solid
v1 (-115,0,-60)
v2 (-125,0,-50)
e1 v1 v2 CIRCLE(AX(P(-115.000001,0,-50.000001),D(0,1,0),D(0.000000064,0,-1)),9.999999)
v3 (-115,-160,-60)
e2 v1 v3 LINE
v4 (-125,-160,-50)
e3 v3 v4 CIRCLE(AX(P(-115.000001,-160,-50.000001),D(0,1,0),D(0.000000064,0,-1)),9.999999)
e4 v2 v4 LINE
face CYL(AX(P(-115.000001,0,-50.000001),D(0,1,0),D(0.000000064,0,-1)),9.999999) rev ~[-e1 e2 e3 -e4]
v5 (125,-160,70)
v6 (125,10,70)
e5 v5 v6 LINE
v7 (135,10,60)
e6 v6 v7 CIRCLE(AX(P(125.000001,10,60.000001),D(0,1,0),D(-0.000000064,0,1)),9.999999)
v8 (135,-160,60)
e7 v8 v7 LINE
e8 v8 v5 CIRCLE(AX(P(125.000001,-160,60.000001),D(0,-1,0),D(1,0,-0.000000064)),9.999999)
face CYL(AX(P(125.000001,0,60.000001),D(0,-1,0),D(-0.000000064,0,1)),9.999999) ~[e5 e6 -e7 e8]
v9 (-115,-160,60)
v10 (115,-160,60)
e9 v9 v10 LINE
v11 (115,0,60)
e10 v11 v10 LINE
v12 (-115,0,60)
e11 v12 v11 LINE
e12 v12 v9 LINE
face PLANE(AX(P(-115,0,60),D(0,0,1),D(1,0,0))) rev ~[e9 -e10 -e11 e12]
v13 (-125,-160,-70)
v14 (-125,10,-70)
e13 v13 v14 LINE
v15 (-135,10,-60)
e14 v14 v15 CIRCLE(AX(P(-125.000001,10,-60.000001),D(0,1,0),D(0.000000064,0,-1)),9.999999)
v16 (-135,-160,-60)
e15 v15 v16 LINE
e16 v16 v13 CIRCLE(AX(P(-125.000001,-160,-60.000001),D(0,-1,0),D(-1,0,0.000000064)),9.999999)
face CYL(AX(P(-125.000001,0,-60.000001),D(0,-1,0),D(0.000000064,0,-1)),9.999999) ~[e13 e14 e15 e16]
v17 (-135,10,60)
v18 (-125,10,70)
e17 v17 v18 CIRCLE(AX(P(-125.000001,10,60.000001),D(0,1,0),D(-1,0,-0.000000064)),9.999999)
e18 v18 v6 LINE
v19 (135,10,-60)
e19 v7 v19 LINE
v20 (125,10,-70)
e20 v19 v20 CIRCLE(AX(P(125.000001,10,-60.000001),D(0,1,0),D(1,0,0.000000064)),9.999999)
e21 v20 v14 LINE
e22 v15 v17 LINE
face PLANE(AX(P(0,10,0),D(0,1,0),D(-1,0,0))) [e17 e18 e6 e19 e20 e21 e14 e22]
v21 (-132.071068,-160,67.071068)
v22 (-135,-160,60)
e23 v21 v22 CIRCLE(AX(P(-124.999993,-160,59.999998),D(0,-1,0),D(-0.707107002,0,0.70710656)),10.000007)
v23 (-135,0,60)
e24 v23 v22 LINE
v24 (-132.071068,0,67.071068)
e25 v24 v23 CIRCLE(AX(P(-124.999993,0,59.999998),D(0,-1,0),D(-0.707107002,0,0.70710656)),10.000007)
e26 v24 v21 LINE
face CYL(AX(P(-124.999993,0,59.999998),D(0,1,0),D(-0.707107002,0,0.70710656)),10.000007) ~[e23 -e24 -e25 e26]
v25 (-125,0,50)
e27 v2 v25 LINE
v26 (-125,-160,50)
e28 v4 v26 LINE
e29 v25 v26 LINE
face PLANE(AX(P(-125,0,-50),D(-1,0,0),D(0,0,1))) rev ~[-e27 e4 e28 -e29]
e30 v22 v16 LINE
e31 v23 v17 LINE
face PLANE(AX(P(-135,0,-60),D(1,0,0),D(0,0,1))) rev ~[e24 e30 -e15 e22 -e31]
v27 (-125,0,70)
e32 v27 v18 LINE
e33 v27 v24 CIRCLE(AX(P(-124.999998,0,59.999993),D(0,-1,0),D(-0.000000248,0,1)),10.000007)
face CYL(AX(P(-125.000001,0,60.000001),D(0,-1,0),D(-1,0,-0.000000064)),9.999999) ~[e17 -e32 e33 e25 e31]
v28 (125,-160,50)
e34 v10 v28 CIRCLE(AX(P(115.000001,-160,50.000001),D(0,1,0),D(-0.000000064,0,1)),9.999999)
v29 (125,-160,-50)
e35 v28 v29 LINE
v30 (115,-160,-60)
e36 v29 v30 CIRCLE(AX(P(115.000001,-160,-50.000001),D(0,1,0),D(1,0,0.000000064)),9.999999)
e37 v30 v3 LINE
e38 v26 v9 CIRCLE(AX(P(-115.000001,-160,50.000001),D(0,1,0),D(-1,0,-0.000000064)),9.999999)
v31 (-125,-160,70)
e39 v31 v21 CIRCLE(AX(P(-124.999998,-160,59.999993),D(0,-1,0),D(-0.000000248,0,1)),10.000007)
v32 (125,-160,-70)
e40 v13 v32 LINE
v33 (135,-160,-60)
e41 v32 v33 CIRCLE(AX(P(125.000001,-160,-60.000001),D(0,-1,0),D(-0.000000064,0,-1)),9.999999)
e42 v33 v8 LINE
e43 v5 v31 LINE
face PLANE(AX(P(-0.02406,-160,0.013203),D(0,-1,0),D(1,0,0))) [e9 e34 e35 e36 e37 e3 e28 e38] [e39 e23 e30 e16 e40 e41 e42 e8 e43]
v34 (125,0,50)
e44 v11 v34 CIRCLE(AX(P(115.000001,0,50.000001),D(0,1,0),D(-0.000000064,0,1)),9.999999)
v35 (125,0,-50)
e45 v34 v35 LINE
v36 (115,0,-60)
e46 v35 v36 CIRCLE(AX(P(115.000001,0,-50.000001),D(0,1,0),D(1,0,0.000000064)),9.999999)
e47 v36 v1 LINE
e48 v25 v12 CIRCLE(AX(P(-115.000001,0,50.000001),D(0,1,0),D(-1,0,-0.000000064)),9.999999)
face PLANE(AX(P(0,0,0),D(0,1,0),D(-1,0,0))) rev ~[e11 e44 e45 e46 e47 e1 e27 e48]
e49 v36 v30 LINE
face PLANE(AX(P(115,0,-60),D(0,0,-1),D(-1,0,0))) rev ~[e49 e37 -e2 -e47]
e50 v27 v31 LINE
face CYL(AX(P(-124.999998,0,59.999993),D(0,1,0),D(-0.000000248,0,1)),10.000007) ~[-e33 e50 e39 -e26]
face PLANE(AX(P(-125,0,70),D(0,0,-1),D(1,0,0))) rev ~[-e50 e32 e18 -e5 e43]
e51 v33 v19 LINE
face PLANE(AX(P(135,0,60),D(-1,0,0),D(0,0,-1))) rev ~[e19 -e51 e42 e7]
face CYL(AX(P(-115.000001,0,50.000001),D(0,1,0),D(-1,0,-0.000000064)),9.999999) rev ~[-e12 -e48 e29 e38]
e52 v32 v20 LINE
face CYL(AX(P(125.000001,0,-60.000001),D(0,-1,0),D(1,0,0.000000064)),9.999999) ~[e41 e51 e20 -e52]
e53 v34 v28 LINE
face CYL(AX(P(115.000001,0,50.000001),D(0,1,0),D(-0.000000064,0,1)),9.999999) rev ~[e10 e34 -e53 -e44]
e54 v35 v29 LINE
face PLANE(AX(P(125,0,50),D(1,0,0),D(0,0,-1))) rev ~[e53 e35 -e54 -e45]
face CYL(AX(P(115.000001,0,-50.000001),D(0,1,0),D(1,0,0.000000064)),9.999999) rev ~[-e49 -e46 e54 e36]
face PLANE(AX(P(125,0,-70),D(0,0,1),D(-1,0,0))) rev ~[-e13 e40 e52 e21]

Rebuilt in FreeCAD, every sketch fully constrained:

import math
import FreeCAD as App
import Part
import Sketcher

doc = App.newDocument("Part")
body = doc.addObject("PartDesign::Body", "Body")

sketch1 = doc.addObject("Sketcher::SketchObject", "Sketch")
body.addObject(sketch1)
sketch1.AttachmentSupport = (doc.XZ_Plane, [""])
sketch1.MapMode = "FlatFace"
sketch1.addGeometry(Part.LineSegment(App.Vector(125, 70, 0), App.Vector(-125, 70, 0)), False)
sketch1.addGeometry(Part.ArcOfCircle(Part.Circle(App.Vector(-125, 60, 0), App.Vector(0, 0, 1), 10), math.radians(90), math.radians(135)), False)
sketch1.addGeometry(Part.ArcOfCircle(Part.Circle(App.Vector(-125, 60, 0), App.Vector(0, 0, 1), 10), math.radians(135), math.radians(180)), False)
sketch1.addGeometry(Part.LineSegment(App.Vector(-135, 60, 0), App.Vector(-135, -60, 0)), False)
sketch1.addGeometry(Part.ArcOfCircle(Part.Circle(App.Vector(-125, -60, 0), App.Vector(0, 0, 1), 10), math.radians(180), math.radians(270)), False)
sketch1.addGeometry(Part.LineSegment(App.Vector(-125, -70, 0), App.Vector(125, -70, 0)), False)
sketch1.addGeometry(Part.ArcOfCircle(Part.Circle(App.Vector(125, -60, 0), App.Vector(0, 0, 1), 10), math.radians(-90), math.radians(0)), False)
sketch1.addGeometry(Part.LineSegment(App.Vector(135, -60, 0), App.Vector(135, 60, 0)), False)
sketch1.addGeometry(Part.ArcOfCircle(Part.Circle(App.Vector(125, 60, 0), App.Vector(0, 0, 1), 10), math.radians(0), math.radians(90)), False)
sketch1.addGeometry(Part.LineSegment(App.Vector(115, -60, 0), App.Vector(-115, -60, 0)), False)
sketch1.addGeometry(Part.ArcOfCircle(Part.Circle(App.Vector(-115, -50, 0), App.Vector(0, 0, 1), 10), math.radians(180), math.radians(270)), False)
sketch1.addGeometry(Part.LineSegment(App.Vector(-125, -50, 0), App.Vector(-125, 50, 0)), False)
sketch1.addGeometry(Part.ArcOfCircle(Part.Circle(App.Vector(-115, 50, 0), App.Vector(0, 0, 1), 10), math.radians(90), math.radians(180)), False)
sketch1.addGeometry(Part.LineSegment(App.Vector(-115, 60, 0), App.Vector(115, 60, 0)), False)
sketch1.addGeometry(Part.ArcOfCircle(Part.Circle(App.Vector(115, 50, 0), App.Vector(0, 0, 1), 10), math.radians(0), math.radians(90)), False)
sketch1.addGeometry(Part.LineSegment(App.Vector(125, 50, 0), App.Vector(125, -50, 0)), False)
sketch1.addGeometry(Part.ArcOfCircle(Part.Circle(App.Vector(115, -50, 0), App.Vector(0, 0, 1), 10), math.radians(-90), math.radians(0)), False)
sketch1.addConstraint(Sketcher.Constraint("Tangent", 0, 2, 1, 1))
sketch1.addConstraint(Sketcher.Constraint("Tangent", 1, 2, 2, 1))
sketch1.addConstraint(Sketcher.Constraint("Tangent", 2, 2, 3, 1))
sketch1.addConstraint(Sketcher.Constraint("Tangent", 3, 2, 4, 1))
sketch1.addConstraint(Sketcher.Constraint("Tangent", 4, 2, 5, 1))
sketch1.addConstraint(Sketcher.Constraint("Tangent", 5, 2, 6, 1))
sketch1.addConstraint(Sketcher.Constraint("Tangent", 6, 2, 7, 1))
sketch1.addConstraint(Sketcher.Constraint("Tangent", 7, 2, 8, 1))
sketch1.addConstraint(Sketcher.Constraint("Tangent", 8, 2, 0, 1))
sketch1.addConstraint(Sketcher.Constraint("Tangent", 9, 2, 10, 2))
sketch1.addConstraint(Sketcher.Constraint("Tangent", 10, 1, 11, 1))
sketch1.addConstraint(Sketcher.Constraint("Tangent", 11, 2, 12, 2))
sketch1.addConstraint(Sketcher.Constraint("Tangent", 12, 1, 13, 1))
sketch1.addConstraint(Sketcher.Constraint("Tangent", 13, 2, 14, 2))
sketch1.addConstraint(Sketcher.Constraint("Tangent", 14, 1, 15, 1))
sketch1.addConstraint(Sketcher.Constraint("Tangent", 15, 2, 16, 2))
sketch1.addConstraint(Sketcher.Constraint("Tangent", 16, 1, 9, 1))
sketch1.addConstraint(Sketcher.Constraint("Horizontal", 0))
sketch1.addConstraint(Sketcher.Constraint("Vertical", 3))
sketch1.addConstraint(Sketcher.Constraint("Horizontal", 5))
sketch1.addConstraint(Sketcher.Constraint("Vertical", 7))
sketch1.addConstraint(Sketcher.Constraint("Horizontal", 9))
sketch1.addConstraint(Sketcher.Constraint("Vertical", 11))
sketch1.addConstraint(Sketcher.Constraint("Horizontal", 13))
sketch1.addConstraint(Sketcher.Constraint("Vertical", 15))
sketch1.addConstraint(Sketcher.Constraint("Equal", 1, 2))
sketch1.addConstraint(Sketcher.Constraint("Equal", 4, 6))
sketch1.addConstraint(Sketcher.Constraint("Equal", 6, 8))
sketch1.addConstraint(Sketcher.Constraint("Equal", 8, 10))
sketch1.addConstraint(Sketcher.Constraint("Equal", 10, 12))
sketch1.addConstraint(Sketcher.Constraint("Equal", 12, 14))
sketch1.addConstraint(Sketcher.Constraint("Equal", 14, 16))
sketch1.addConstraint(Sketcher.Constraint("Symmetric", 1, 3, 6, 3, -1, 1))
sketch1.addConstraint(Sketcher.Constraint("Symmetric", 10, 3, 14, 3, -1, 1))
sketch1.addConstraint(Sketcher.Constraint("Horizontal", 8, 3, 2, 2))
sketch1.addConstraint(Sketcher.Constraint("Horizontal", 6, 2, 9, 2))
sketch1.addConstraint(Sketcher.Constraint("Vertical", 4, 2, 10, 1))
sketch1.addConstraint(Sketcher.Constraint("Radius", 4, 9.999999))
sketch1.addConstraint(Sketcher.Constraint("DistanceX", 0, 2, 0, 1, 250.0))
sketch1.addConstraint(Sketcher.Constraint("DistanceY", 3, 2, 3, 1, 120.0))
sketch1.addConstraint(Sketcher.Constraint("DistanceX", 1, 2, -1, 1, 132.071068))
pad1 = doc.addObject("PartDesign::Pad", "Pad")
body.addObject(pad1)
pad1.Profile = sketch1
pad1.Length = 160

sketch2 = doc.addObject("Sketcher::SketchObject", "Sketch001")
body.addObject(sketch2)
sketch2.AttachmentSupport = (doc.XZ_Plane, [""])
sketch2.MapMode = "FlatFace"
sketch2.addGeometry(Part.LineSegment(App.Vector(-125, 70, 0), App.Vector(125, 70, 0)), False)
sketch2.addGeometry(Part.ArcOfCircle(Part.Circle(App.Vector(125, 60, 0), App.Vector(0, 0, 1), 10), math.radians(0), math.radians(90)), False)
sketch2.addGeometry(Part.LineSegment(App.Vector(135, 60, 0), App.Vector(135, -60, 0)), False)
sketch2.addGeometry(Part.ArcOfCircle(Part.Circle(App.Vector(125, -60, 0), App.Vector(0, 0, 1), 10), math.radians(-90), math.radians(0)), False)
sketch2.addGeometry(Part.LineSegment(App.Vector(125, -70, 0), App.Vector(-125, -70, 0)), False)
sketch2.addGeometry(Part.ArcOfCircle(Part.Circle(App.Vector(-125, -60, 0), App.Vector(0, 0, 1), 10), math.radians(180), math.radians(270)), False)
sketch2.addGeometry(Part.LineSegment(App.Vector(-135, -60, 0), App.Vector(-135, 60, 0)), False)
sketch2.addGeometry(Part.ArcOfCircle(Part.Circle(App.Vector(-125, 60, 0), App.Vector(0, 0, 1), 10), math.radians(90), math.radians(180)), False)
sketch2.addConstraint(Sketcher.Constraint("Tangent", 0, 2, 1, 2))
sketch2.addConstraint(Sketcher.Constraint("Tangent", 1, 1, 2, 1))
sketch2.addConstraint(Sketcher.Constraint("Tangent", 2, 2, 3, 2))
sketch2.addConstraint(Sketcher.Constraint("Tangent", 3, 1, 4, 1))
sketch2.addConstraint(Sketcher.Constraint("Tangent", 4, 2, 5, 2))
sketch2.addConstraint(Sketcher.Constraint("Tangent", 5, 1, 6, 1))
sketch2.addConstraint(Sketcher.Constraint("Tangent", 6, 2, 7, 2))
sketch2.addConstraint(Sketcher.Constraint("Tangent", 7, 1, 0, 1))
sketch2.addConstraint(Sketcher.Constraint("Horizontal", 0))
sketch2.addConstraint(Sketcher.Constraint("Vertical", 2))
sketch2.addConstraint(Sketcher.Constraint("Horizontal", 4))
sketch2.addConstraint(Sketcher.Constraint("Vertical", 6))
sketch2.addConstraint(Sketcher.Constraint("Equal", 1, 3))
sketch2.addConstraint(Sketcher.Constraint("Equal", 3, 5))
sketch2.addConstraint(Sketcher.Constraint("Equal", 5, 7))
sketch2.addConstraint(Sketcher.Constraint("Symmetric", 1, 3, 5, 3, -1, 1))
sketch2.addConstraint(Sketcher.Constraint("Radius", 1, 9.999999))
sketch2.addConstraint(Sketcher.Constraint("DistanceX", 0, 1, 0, 2, 250.0))
sketch2.addConstraint(Sketcher.Constraint("DistanceY", 2, 2, 2, 1, 120.0))
pad2 = doc.addObject("PartDesign::Pad", "Pad001")
body.addObject(pad2)
pad2.Profile = sketch2
pad2.Length = 10
pad2.Reversed = True

doc.recompute()
